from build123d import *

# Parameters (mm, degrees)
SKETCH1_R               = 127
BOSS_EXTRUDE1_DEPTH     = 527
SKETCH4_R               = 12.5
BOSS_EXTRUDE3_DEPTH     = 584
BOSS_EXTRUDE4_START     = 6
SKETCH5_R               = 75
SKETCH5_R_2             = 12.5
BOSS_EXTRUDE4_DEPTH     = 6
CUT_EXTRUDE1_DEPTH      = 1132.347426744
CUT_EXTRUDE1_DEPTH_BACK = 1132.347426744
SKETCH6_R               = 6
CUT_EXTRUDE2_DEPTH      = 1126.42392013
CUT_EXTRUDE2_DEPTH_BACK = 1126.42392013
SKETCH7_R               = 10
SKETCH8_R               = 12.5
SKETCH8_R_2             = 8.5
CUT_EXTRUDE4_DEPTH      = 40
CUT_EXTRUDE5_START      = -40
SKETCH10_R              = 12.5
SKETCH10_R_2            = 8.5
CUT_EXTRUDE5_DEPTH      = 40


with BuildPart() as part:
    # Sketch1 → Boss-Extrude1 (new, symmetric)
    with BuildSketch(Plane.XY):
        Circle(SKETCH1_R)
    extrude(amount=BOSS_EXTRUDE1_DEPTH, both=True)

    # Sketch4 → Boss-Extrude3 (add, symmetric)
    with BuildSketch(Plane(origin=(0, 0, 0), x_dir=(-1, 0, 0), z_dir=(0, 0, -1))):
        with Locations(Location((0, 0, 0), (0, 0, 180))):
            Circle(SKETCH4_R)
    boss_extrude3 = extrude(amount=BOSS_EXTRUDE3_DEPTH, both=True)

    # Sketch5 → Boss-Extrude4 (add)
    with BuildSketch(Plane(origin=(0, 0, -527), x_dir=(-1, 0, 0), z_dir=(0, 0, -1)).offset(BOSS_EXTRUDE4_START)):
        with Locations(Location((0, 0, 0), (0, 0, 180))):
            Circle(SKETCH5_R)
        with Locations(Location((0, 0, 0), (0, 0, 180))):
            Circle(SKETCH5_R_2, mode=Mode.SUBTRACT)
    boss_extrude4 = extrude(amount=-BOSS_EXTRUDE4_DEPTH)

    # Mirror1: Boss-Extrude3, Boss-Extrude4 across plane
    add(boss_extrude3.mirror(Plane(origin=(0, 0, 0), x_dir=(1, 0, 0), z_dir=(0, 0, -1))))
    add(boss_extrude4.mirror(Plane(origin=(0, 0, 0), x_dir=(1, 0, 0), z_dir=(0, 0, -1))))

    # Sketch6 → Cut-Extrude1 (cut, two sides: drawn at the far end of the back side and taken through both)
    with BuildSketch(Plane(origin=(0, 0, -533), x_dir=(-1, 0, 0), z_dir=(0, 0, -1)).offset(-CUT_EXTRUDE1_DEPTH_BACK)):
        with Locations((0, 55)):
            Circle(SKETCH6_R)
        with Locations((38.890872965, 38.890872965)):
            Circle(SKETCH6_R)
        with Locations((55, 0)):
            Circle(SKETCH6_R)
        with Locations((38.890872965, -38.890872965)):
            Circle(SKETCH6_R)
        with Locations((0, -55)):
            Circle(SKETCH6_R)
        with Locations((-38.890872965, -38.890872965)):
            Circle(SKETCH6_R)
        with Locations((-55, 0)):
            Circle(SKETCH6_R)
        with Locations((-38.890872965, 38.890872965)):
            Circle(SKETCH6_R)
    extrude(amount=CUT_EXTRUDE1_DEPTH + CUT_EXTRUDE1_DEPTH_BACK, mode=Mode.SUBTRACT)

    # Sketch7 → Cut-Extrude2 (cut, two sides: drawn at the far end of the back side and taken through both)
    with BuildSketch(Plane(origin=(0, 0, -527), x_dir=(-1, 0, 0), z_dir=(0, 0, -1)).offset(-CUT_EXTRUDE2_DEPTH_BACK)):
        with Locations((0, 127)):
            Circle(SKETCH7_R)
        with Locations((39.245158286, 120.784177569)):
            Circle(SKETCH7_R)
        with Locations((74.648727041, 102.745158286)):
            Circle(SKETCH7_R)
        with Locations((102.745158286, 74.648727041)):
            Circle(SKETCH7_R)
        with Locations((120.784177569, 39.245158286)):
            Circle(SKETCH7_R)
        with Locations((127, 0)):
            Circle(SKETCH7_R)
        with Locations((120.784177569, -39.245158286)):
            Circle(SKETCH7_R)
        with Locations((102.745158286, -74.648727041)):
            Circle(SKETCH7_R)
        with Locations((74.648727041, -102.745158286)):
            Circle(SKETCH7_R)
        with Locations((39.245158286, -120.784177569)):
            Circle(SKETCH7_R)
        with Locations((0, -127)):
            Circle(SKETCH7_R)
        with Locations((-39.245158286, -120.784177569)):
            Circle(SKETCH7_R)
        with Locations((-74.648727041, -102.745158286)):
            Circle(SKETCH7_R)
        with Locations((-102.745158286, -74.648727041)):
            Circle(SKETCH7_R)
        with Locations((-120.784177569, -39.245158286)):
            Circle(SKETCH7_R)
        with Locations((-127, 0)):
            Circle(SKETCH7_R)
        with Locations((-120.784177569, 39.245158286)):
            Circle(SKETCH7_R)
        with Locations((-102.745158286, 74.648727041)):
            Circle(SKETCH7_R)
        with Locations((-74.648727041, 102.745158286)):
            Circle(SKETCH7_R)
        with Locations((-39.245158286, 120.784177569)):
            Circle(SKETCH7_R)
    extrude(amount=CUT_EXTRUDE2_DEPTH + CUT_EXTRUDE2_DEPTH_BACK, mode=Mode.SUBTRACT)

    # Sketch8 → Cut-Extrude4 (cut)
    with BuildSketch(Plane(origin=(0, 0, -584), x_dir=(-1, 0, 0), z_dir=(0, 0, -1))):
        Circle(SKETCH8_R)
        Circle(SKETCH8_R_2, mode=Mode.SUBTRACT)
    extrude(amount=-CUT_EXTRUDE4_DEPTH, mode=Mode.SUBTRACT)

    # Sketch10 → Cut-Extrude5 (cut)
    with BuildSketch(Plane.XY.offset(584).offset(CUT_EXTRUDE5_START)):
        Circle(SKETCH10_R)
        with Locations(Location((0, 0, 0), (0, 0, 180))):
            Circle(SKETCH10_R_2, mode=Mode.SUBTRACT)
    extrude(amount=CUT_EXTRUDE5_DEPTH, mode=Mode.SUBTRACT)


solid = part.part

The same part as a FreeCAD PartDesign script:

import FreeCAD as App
import Part
import Sketcher

V = App.Vector
Q = App.Units.Quantity

doc = App.newDocument("Part")
body = doc.addObject("PartDesign::Body", "Body")

# Sketch on XY plane
sketch1 = doc.addObject("Sketcher::SketchObject", "Sketch")
body.addObject(sketch1)
sketch1.AttachmentSupport = (doc.XY_Plane, [""])
sketch1.MapMode = "FlatFace"
sketch1.addGeometry(Part.Circle(V(0, 0, 0), V(0, 0, 1), 127), False)
sketch1.addConstraint([
    Sketcher.Constraint("Coincident", 0, 3, -1, 1),
    Sketcher.Constraint("Diameter", 0, Q("254 mm")),
])
pad1 = doc.addObject("PartDesign::Pad", "Pad")
body.addObject(pad1)
pad1.Profile = sketch1
pad1.Length = 1054
pad1.Midplane = True

# Sketch on XY plane
sketch2 = doc.addObject("Sketcher::SketchObject", "Sketch001")
body.addObject(sketch2)
sketch2.AttachmentSupport = (doc.XY_Plane, [""])
sketch2.MapMode = "FlatFace"
sketch2.addGeometry(Part.Circle(V(0, 0, 0), V(0, 0, 1), 12), False)
sketch2.addConstraint([
    Sketcher.Constraint("Coincident", 0, 3, -1, 1),
    Sketcher.Constraint("Diameter", 0, Q("25 mm")),
])
pad2 = doc.addObject("PartDesign::Pad", "Pad001")
body.addObject(pad2)
pad2.Profile = sketch2
pad2.Length = 1168
pad2.Midplane = True

# Sketch on XY plane
sketch3 = doc.addObject("Sketcher::SketchObject", "Sketch002")
body.addObject(sketch3)
sketch3.AttachmentSupport = (doc.XY_Plane, [""])
sketch3.MapMode = "FlatFace"
sketch3.AttachmentOffset = App.Placement(V(0, 0, -533), App.Rotation())
sketch3.addGeometry([
    Part.Circle(V(0, 0, 0), V(0, 0, 1), 75),
    Part.Circle(V(0, 0, 0), V(0, 0, 1), 12),
], False)
sketch3.addConstraint([
    Sketcher.Constraint("Coincident", 0, 3, -1, 1),
    Sketcher.Constraint("Coincident", 1, 3, -1, 1),
    Sketcher.Constraint("Diameter", 0, Q("150 mm")),
    Sketcher.Constraint("Diameter", 1, Q("25 mm")),
])
pad3 = doc.addObject("PartDesign::Pad", "Pad002")
body.addObject(pad3)
pad3.Profile = sketch3
pad3.Length = 6
doc.recompute()

mirrored = doc.addObject("PartDesign::Mirrored", "Mirrored")
body.addObject(mirrored)
mirrored.Originals = [pad2, pad3]
mirrored.MirrorPlane = (doc.XY_Plane, [""])
body.Tip = mirrored

# Sketch on XY plane
sketch4 = doc.addObject("Sketcher::SketchObject", "Sketch003")
body.addObject(sketch4)
sketch4.AttachmentSupport = (doc.XY_Plane, [""])
sketch4.MapMode = "FlatFace"
sketch4.AttachmentOffset = App.Placement(V(0, 0, -533), App.Rotation())
sketch4.addGeometry([
    Part.Circle(V(0, 55, 0), V(0, 0, 1), 6),  # 0
    Part.Circle(V(-39, 39, 0), V(0, 0, 1), 6),  # 1
    Part.Circle(V(-55, 0, 0), V(0, 0, 1), 6),  # 2
    Part.Circle(V(-39, -39, 0), V(0, 0, 1), 6),  # 3
    Part.Circle(V(0, -55, 0), V(0, 0, 1), 6),  # 4
    Part.Circle(V(39, -39, 0), V(0, 0, 1), 6),  # 5
    Part.Circle(V(55, 0, 0), V(0, 0, 1), 6),  # 6
    Part.Circle(V(39, 39, 0), V(0, 0, 1), 6),  # 7
], False)
sketch4.addConstraint([
    Sketcher.Constraint("Equal", 0, 1),
    Sketcher.Constraint("Equal", 1, 2),
    Sketcher.Constraint("Equal", 2, 3),
    Sketcher.Constraint("Equal", 3, 4),
    Sketcher.Constraint("Equal", 4, 5),
    Sketcher.Constraint("Equal", 5, 6),
    Sketcher.Constraint("Equal", 6, 7),
    Sketcher.Constraint("Symmetric", 0, 3, 4, 3, -1, 1),
    Sketcher.Constraint("Symmetric", 1, 3, 5, 3, -1, 1),
    Sketcher.Constraint("Symmetric", 2, 3, 6, 3, -1, 1),
    Sketcher.Constraint("Symmetric", 3, 3, 7, 3, -1, 1),
    Sketcher.Constraint("Symmetric", 3, 3, 5, 3, -2),
    Sketcher.Constraint("PointOnObject", 0, 3, -2),
    Sketcher.Constraint("PointOnObject", 2, 3, -1),
    Sketcher.Constraint("Diameter", 0, Q("12 mm")),
    Sketcher.Constraint("DistanceY", -1, 1, 0, 3, Q("55 mm")),
    Sketcher.Constraint("DistanceX", 2, 3, -1, 1, Q("55 mm")),
    Sketcher.Constraint("DistanceX", 1, 3, -1, 1, Q("38.890873 mm")),
    Sketcher.Constraint("DistanceY", -1, 1, 1, 3, Q("38.890873 mm")),
])
pocket1 = doc.addObject("PartDesign::Pocket", "Pocket")
body.addObject(pocket1)
pocket1.Profile = sketch4
pocket1.Type = "ThroughAll"
pocket1.Midplane = True

# Sketch on XY plane
sketch5 = doc.addObject("Sketcher::SketchObject", "Sketch004")
body.addObject(sketch5)
sketch5.AttachmentSupport = (doc.XY_Plane, [""])
sketch5.MapMode = "FlatFace"
sketch5.AttachmentOffset = App.Placement(V(0, 0, -527), App.Rotation())
sketch5.addGeometry([
    Part.Circle(V(0, 127, 0), V(0, 0, 1), 10),  # 0
    Part.Circle(V(-39, 121, 0), V(0, 0, 1), 10),  # 1
    Part.Circle(V(-75, 103, 0), V(0, 0, 1), 10),  # 2
    Part.Circle(V(-103, 75, 0), V(0, 0, 1), 10),  # 3
    Part.Circle(V(-121, 39, 0), V(0, 0, 1), 10),  # 4
    Part.Circle(V(-127, 0, 0), V(0, 0, 1), 10),  # 5
    Part.Circle(V(-121, -39, 0), V(0, 0, 1), 10),  # 6
    Part.Circle(V(-103, -75, 0), V(0, 0, 1), 10),  # 7
    Part.Circle(V(-75, -103, 0), V(0, 0, 1), 10),  # 8
    Part.Circle(V(-39, -121, 0), V(0, 0, 1), 10),  # 9
    Part.Circle(V(0, -127, 0), V(0, 0, 1), 10),  # 10
    Part.Circle(V(39, -121, 0), V(0, 0, 1), 10),  # 11
    Part.Circle(V(75, -103, 0), V(0, 0, 1), 10),  # 12
    Part.Circle(V(103, -75, 0), V(0, 0, 1), 10),  # 13
    Part.Circle(V(121, -39, 0), V(0, 0, 1), 10),  # 14
    Part.Circle(V(127, 0, 0), V(0, 0, 1), 10),  # 15
    Part.Circle(V(121, 39, 0), V(0, 0, 1), 10),  # 16
    Part.Circle(V(103, 75, 0), V(0, 0, 1), 10),  # 17
    Part.Circle(V(75, 103, 0), V(0, 0, 1), 10),  # 18
    Part.Circle(V(39, 121, 0), V(0, 0, 1), 10),  # 19
], False)
sketch5.addConstraint([
    Sketcher.Constraint("Equal", 0, 1),
    Sketcher.Constraint("Equal", 1, 2),
    Sketcher.Constraint("Equal", 2, 3),
    Sketcher.Constraint("Equal", 3, 4),
    Sketcher.Constraint("Equal", 4, 5),
    Sketcher.Constraint("Equal", 5, 6),
    Sketcher.Constraint("Equal", 6, 7),
    Sketcher.Constraint("Equal", 7, 8),
    Sketcher.Constraint("Equal", 8, 9),
    Sketcher.Constraint("Equal", 9, 10),
    Sketcher.Constraint("Equal", 10, 11),
    Sketcher.Constraint("Equal", 11, 12),
    Sketcher.Constraint("Equal", 12, 13),
    Sketcher.Constraint("Equal", 13, 14),
    Sketcher.Constraint("Equal", 14, 15),
    Sketcher.Constraint("Equal", 15, 16),
    Sketcher.Constraint("Equal", 16, 17),
    Sketcher.Constraint("Equal", 17, 18),
    Sketcher.Constraint("Equal", 18, 19),
    Sketcher.Constraint("Symmetric", 0, 3, 10, 3, -1, 1),
    Sketcher.Constraint("Symmetric", 1, 3, 11, 3, -1, 1),
    Sketcher.Constraint("Symmetric", 2, 3, 12, 3, -1, 1),
    Sketcher.Constraint("Symmetric", 3, 3, 13, 3, -1, 1),
    Sketcher.Constraint("Symmetric", 4, 3, 14, 3, -1, 1),
    Sketcher.Constraint("Symmetric", 5, 3, 15, 3, -1, 1),
    Sketcher.Constraint("Symmetric", 6, 3, 16, 3, -1, 1),
    Sketcher.Constraint("Symmetric", 7, 3, 17, 3, -1, 1),
    Sketcher.Constraint("Symmetric", 8, 3, 18, 3, -1, 1),
    Sketcher.Constraint("Symmetric", 9, 3, 19, 3, -1, 1),
    Sketcher.Constraint("Symmetric", 9, 3, 11, 3, -2),
    Sketcher.Constraint("Symmetric", 8, 3, 12, 3, -2),
    Sketcher.Constraint("Symmetric", 7, 3, 13, 3, -2),
    Sketcher.Constraint("Symmetric", 6, 3, 14, 3, -2),
    Sketcher.Constraint("PointOnObject", 0, 3, -2),
    Sketcher.Constraint("PointOnObject", 5, 3, -1),
    Sketcher.Constraint("Diameter", 0, Q("20 mm")),
    Sketcher.Constraint("DistanceY", -1, 1, 0, 3, Q("127 mm")),
    Sketcher.Constraint("DistanceX", 5, 3, -1, 1, Q("127 mm")),
    Sketcher.Constraint("DistanceX", 3, 3, 1, 3, Q("63.5 mm")),
    Sketcher.Constraint("DistanceY", 4, 3, 2, 3, Q("63.5 mm")),
    Sketcher.Constraint("DistanceX", 1, 3, -1, 1, Q("39.245158 mm")),
    Sketcher.Constraint("DistanceY", -1, 1, 2, 3, Q("102.745158 mm")),
    Sketcher.Constraint("DistanceX", 2, 3, 1, 3, Q("35.403569 mm")),
    Sketcher.Constraint("DistanceY", 2, 3, 1, 3, Q("18.039019 mm")),
    Sketcher.Constraint("DistanceY", 3, 3, 2, 3, Q("28.096431 mm")),
    Sketcher.Constraint("DistanceX", 4, 3, 3, 3, Q("18.039019 mm")),
])
pocket2 = doc.addObject("PartDesign::Pocket", "Pocket001")
body.addObject(pocket2)
pocket2.Profile = sketch5
pocket2.Type = "ThroughAll"
pocket2.Midplane = True

# Sketch on XY plane
sketch6 = doc.addObject("Sketcher::SketchObject", "Sketch005")
body.addObject(sketch6)
sketch6.AttachmentSupport = (doc.XY_Plane, [""])
sketch6.MapMode = "FlatFace"
sketch6.AttachmentOffset = App.Placement(V(0, 0, -584), App.Rotation())
sketch6.addGeometry([
    Part.Circle(V(0, 0, 0), V(0, 0, 1), 12),
    Part.Circle(V(0, 0, 0), V(0, 0, 1), 8),
], False)
sketch6.addConstraint([
    Sketcher.Constraint("Coincident", 0, 3, -1, 1),
    Sketcher.Constraint("Coincident", 1, 3, -1, 1),
    Sketcher.Constraint("Diameter", 0, Q("25 mm")),
    Sketcher.Constraint("Diameter", 1, Q("17 mm")),
])
pocket3 = doc.addObject("PartDesign::Pocket", "Pocket002")
body.addObject(pocket3)
pocket3.Profile = sketch6
pocket3.Length = 40
pocket3.Reversed = True

# Sketch on XY plane
sketch7 = doc.addObject("Sketcher::SketchObject", "Sketch006")
body.addObject(sketch7)
sketch7.AttachmentSupport = (doc.XY_Plane, [""])
sketch7.MapMode = "FlatFace"
sketch7.AttachmentOffset = App.Placement(V(0, 0, 544), App.Rotation())
sketch7.addGeometry([
    Part.Circle(V(0, 0, 0), V(0, 0, 1), 12),
    Part.Circle(V(0, 0, 0), V(0, 0, 1), 8),
], False)
sketch7.addConstraint([
    Sketcher.Constraint("Coincident", 0, 3, -1, 1),
    Sketcher.Constraint("Coincident", 1, 3, -1, 1),
    Sketcher.Constraint("Diameter", 0, Q("25 mm")),
    Sketcher.Constraint("Diameter", 1, Q("17 mm")),
])
pocket4 = doc.addObject("PartDesign::Pocket", "Pocket003")
body.addObject(pocket4)
pocket4.Profile = sketch7
pocket4.Length = 40
pocket4.Reversed = True

doc.recompute()
